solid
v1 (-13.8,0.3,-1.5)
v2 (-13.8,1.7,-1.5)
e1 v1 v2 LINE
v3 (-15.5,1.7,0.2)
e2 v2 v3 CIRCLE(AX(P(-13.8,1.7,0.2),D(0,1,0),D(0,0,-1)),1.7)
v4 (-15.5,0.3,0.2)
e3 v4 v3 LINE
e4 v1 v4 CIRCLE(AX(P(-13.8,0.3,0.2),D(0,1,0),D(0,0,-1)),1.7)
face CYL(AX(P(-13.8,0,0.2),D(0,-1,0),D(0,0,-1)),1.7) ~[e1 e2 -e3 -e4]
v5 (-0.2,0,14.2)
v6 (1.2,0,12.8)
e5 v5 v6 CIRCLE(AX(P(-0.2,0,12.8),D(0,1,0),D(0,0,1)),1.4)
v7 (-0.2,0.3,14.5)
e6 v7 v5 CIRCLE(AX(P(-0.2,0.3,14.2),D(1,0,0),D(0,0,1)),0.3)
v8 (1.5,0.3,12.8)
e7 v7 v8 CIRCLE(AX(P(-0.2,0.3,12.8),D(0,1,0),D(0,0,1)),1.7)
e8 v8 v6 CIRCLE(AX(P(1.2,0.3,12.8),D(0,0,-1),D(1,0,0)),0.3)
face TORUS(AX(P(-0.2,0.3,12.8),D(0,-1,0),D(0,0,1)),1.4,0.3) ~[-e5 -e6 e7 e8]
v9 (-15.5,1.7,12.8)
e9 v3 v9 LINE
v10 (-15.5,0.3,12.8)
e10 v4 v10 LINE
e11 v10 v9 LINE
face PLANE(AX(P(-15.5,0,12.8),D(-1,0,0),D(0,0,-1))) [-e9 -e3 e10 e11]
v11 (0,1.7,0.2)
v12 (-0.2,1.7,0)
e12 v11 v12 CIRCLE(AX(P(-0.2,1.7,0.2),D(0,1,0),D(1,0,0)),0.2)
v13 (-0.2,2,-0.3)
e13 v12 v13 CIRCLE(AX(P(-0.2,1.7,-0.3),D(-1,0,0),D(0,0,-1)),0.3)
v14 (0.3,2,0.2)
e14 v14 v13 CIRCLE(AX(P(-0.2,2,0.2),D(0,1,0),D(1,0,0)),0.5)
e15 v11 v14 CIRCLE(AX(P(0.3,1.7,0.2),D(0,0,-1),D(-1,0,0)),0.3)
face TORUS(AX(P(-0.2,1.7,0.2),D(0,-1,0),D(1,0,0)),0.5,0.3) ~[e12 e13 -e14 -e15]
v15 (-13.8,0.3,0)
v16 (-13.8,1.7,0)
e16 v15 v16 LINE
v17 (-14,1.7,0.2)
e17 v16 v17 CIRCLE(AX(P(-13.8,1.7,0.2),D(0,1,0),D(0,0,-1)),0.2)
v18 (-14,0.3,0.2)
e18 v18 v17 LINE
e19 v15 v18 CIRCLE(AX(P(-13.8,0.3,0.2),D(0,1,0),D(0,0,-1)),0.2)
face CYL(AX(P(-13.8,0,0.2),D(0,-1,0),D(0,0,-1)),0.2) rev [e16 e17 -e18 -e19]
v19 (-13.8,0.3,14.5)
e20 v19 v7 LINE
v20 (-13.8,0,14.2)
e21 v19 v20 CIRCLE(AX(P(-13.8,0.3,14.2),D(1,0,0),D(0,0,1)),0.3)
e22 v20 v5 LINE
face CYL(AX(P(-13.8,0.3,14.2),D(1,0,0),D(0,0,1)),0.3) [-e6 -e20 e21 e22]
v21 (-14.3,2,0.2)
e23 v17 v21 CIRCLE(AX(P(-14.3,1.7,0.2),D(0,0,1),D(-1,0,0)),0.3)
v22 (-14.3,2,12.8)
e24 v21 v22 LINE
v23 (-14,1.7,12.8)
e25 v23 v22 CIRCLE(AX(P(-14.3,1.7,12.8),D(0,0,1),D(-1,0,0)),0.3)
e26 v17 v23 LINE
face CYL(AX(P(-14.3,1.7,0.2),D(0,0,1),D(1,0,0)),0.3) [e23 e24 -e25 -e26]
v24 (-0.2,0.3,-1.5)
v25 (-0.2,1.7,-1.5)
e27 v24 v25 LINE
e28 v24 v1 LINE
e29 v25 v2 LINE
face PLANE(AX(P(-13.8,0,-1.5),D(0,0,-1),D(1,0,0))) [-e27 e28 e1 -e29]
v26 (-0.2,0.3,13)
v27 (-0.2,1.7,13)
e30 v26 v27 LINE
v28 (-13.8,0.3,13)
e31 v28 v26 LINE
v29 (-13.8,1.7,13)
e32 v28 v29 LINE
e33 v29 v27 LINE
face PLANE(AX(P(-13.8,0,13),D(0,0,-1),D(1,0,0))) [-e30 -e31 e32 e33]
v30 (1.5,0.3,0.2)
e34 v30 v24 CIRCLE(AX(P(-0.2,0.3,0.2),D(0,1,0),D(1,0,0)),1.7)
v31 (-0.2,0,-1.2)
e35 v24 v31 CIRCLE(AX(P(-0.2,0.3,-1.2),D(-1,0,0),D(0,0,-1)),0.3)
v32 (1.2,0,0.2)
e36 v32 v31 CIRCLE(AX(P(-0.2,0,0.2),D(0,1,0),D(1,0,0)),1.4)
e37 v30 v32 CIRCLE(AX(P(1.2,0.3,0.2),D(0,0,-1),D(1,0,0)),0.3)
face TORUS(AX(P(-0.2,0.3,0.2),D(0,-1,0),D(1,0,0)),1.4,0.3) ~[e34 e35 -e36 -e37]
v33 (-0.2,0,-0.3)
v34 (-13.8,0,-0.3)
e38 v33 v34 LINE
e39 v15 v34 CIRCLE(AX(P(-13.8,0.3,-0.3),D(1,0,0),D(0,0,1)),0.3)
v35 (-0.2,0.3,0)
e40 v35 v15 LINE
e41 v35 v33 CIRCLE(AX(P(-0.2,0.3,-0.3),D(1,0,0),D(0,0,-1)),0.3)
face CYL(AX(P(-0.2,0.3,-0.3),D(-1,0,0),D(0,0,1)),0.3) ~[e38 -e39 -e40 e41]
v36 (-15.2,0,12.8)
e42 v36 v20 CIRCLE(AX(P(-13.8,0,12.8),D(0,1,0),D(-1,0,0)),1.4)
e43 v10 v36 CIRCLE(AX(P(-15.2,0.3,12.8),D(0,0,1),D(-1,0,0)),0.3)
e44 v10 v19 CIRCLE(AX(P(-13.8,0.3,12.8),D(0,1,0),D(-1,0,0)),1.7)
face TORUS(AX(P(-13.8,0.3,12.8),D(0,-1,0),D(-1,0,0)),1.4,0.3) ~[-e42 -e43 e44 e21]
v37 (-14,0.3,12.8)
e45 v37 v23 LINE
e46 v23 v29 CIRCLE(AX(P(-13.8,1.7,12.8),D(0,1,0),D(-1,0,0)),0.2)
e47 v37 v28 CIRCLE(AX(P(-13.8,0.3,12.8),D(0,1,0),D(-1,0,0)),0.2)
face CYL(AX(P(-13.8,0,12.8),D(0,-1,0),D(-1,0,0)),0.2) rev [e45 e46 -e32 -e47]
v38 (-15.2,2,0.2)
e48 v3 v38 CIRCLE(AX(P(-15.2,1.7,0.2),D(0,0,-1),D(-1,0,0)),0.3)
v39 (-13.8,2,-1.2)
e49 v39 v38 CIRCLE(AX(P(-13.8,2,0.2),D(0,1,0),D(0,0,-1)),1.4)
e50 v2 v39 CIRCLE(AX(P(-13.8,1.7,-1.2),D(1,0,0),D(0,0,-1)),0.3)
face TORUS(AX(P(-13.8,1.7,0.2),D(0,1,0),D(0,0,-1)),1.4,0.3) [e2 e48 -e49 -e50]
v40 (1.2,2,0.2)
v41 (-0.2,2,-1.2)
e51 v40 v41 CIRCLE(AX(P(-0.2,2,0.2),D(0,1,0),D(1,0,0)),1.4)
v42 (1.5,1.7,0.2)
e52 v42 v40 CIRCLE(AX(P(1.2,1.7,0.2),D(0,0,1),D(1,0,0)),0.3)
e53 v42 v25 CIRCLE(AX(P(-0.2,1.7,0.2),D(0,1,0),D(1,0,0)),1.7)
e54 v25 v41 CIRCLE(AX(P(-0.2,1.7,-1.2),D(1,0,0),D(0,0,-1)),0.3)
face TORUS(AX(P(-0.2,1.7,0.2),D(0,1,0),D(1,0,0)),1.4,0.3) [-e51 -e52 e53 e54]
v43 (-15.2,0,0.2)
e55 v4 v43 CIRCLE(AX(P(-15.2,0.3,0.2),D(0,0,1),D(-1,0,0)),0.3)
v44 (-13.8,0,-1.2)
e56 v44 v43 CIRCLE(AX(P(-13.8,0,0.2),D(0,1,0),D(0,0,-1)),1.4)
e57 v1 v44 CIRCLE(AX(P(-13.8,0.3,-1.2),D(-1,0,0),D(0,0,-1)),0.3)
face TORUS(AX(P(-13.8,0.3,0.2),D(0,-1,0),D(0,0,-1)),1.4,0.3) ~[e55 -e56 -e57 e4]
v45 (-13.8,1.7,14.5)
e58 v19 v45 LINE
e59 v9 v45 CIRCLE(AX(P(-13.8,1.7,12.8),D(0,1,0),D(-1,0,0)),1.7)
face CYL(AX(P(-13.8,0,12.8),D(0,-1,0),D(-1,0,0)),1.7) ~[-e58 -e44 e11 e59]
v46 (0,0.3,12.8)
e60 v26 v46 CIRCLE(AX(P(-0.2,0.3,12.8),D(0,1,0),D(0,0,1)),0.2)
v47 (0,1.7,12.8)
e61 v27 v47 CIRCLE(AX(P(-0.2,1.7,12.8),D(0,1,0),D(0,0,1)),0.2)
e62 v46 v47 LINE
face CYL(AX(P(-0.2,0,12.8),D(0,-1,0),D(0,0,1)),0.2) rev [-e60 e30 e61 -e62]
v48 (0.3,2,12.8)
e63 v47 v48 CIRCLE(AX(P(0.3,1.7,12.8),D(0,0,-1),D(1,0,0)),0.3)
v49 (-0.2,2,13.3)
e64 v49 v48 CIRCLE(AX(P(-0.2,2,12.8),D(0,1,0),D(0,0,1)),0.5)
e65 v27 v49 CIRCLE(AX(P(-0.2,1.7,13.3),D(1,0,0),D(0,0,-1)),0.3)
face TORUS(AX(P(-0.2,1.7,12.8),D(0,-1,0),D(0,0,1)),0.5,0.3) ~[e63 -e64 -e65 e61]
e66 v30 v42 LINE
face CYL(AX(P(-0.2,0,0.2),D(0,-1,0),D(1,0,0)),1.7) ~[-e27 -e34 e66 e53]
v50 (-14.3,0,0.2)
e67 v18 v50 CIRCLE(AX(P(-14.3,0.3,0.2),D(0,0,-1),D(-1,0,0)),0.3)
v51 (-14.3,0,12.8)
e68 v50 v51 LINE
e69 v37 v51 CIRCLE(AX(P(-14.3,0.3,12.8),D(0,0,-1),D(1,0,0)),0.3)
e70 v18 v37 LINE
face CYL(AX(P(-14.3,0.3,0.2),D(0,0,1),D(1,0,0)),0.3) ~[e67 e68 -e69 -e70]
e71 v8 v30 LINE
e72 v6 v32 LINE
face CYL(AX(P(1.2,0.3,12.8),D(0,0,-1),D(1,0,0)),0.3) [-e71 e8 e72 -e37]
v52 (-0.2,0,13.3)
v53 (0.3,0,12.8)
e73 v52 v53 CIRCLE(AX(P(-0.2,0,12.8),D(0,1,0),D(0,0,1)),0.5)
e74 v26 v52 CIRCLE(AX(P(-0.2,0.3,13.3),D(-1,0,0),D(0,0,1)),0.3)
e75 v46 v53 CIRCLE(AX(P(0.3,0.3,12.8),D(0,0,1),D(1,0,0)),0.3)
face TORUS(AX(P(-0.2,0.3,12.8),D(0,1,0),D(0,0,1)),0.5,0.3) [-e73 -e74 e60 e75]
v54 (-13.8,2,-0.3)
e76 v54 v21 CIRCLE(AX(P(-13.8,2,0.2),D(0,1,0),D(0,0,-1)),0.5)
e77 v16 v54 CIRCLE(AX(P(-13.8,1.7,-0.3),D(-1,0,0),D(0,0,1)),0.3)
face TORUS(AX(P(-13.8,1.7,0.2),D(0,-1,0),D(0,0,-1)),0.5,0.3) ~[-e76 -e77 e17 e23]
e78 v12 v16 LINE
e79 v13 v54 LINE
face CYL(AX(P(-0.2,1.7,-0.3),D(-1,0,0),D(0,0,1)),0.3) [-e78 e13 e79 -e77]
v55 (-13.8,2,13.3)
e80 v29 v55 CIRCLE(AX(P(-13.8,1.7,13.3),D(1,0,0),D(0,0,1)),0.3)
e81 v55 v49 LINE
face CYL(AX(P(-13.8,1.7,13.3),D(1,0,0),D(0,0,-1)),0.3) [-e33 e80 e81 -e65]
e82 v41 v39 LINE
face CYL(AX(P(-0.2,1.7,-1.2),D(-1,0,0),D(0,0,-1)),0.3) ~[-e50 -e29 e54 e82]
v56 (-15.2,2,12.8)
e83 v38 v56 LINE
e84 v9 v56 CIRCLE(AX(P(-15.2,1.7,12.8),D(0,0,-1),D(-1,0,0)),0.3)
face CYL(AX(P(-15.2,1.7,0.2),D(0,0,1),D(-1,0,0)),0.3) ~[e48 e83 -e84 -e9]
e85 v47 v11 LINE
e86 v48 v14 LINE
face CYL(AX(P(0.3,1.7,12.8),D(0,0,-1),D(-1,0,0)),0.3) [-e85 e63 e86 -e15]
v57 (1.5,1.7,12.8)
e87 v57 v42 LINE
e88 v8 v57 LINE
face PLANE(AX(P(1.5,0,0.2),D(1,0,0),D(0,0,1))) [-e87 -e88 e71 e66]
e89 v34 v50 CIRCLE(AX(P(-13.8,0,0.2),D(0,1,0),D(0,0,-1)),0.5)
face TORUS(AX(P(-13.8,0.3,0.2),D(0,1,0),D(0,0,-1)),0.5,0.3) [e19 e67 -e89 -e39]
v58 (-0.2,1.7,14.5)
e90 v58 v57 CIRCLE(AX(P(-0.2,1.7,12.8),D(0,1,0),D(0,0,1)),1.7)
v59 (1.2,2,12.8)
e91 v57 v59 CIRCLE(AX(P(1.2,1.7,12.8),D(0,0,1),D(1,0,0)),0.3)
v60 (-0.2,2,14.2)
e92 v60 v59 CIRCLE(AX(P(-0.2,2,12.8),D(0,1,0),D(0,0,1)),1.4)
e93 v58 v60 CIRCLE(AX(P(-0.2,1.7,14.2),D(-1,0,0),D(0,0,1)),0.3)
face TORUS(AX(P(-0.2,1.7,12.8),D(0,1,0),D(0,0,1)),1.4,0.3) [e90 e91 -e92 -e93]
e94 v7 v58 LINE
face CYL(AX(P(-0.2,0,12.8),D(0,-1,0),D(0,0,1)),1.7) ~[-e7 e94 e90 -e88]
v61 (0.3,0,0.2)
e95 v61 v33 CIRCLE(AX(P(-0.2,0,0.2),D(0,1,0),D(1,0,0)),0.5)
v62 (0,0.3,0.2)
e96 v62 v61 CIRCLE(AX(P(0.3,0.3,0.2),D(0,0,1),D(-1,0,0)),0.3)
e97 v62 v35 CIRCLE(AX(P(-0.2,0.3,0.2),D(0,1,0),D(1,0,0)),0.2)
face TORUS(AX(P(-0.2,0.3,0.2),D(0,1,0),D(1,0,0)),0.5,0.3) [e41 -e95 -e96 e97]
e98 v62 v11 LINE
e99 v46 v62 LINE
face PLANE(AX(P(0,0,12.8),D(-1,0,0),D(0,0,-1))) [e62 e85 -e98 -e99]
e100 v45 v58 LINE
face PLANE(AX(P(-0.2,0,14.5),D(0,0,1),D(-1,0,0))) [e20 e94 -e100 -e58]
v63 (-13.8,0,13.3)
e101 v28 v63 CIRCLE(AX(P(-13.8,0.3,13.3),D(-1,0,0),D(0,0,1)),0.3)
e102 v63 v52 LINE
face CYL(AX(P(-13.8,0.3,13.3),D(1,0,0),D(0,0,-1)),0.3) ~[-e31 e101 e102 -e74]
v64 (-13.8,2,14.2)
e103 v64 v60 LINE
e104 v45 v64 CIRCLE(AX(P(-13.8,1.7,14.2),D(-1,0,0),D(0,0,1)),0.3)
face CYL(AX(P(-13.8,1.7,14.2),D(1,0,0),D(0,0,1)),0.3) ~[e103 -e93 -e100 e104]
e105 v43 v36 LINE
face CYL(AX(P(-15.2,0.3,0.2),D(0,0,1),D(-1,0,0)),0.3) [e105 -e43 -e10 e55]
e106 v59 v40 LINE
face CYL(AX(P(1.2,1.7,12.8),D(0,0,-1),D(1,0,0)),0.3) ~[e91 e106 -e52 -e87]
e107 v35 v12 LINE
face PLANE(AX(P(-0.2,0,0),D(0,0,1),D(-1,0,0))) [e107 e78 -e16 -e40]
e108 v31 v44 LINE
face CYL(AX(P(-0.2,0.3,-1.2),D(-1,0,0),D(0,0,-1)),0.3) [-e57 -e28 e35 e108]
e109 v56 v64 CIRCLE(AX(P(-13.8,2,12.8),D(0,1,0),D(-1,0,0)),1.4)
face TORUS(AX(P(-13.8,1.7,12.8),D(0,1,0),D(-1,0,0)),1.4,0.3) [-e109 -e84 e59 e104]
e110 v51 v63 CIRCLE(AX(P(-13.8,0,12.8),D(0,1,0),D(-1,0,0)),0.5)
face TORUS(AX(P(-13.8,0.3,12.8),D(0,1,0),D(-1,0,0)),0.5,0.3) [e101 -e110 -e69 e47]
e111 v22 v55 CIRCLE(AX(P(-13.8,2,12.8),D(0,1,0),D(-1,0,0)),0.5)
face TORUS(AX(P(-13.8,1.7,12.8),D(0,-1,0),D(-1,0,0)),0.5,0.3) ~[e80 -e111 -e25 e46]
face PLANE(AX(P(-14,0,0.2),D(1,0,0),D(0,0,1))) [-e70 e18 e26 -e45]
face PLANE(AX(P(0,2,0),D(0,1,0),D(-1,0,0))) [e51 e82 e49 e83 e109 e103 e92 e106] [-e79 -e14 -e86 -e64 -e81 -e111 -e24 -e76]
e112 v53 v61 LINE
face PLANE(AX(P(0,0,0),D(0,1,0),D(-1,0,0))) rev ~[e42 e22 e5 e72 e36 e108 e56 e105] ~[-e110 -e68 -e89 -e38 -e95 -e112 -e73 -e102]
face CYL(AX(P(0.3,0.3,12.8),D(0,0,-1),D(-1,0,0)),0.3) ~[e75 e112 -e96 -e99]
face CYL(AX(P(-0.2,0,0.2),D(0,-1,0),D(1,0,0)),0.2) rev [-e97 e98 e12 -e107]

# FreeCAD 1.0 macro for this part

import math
import FreeCAD as App
import Part
import Sketcher
from FreeCAD import Vector
Q = App.Units.Quantity


def edges_at(feature, points):
    """Names of the edges that pass closest to the given points."""
    edges = feature.Shape.Edges
    near = lambda p: min(range(len(edges)), key=lambda i: edges[i].distToShape(Part.Vertex(*p))[0])
    return sorted({f"Edge{near(p) + 1}" for p in points})

doc = App.newDocument("Part")
body = doc.addObject("PartDesign::Body", "Body")

# Sketch on XZ plane
sketch1 = doc.addObject("Sketcher::SketchObject", "Sketch")
body.addObject(sketch1)
sketch1.AttachmentSupport = (doc.XZ_Plane, [""])
sketch1.MapMode = "FlatFace"
sketch1.addGeometry(Part.LineSegment(Vector(1.5, 12.8, 0), Vector(1.5, 0.2, 0)), False)
sketch1.addGeometry(Part.ArcOfCircle(Part.Circle(Vector(-0.2, 0.2, 0), Vector(0, 0, 1), 1.7), math.radians(-90), math.radians(0)), False)
sketch1.addGeometry(Part.LineSegment(Vector(-0.2, -1.5, 0), Vector(-13.8, -1.5, 0)), False)
sketch1.addGeometry(Part.ArcOfCircle(Part.Circle(Vector(-13.8, 0.2, 0), Vector(0, 0, 1), 1.7), math.radians(180), math.radians(270)), False)
sketch1.addGeometry(Part.LineSegment(Vector(-15.5, 0.2, 0), Vector(-15.5, 12.8, 0)), False)
sketch1.addGeometry(Part.ArcOfCircle(Part.Circle(Vector(-13.8, 12.8, 0), Vector(0, 0, 1), 1.7), math.radians(90), math.radians(180)), False)
sketch1.addGeometry(Part.LineSegment(Vector(-13.8, 14.5, 0), Vector(-0.2, 14.5, 0)), False)
sketch1.addGeometry(Part.ArcOfCircle(Part.Circle(Vector(-0.2, 12.8, 0), Vector(0, 0, 1), 1.7), math.radians(0), math.radians(90)), False)
sketch1.addGeometry(Part.LineSegment(Vector(-13.8, 0, 0), Vector(-0.2, 0, 0)), False)
sketch1.addGeometry(Part.ArcOfCircle(Part.Circle(Vector(-0.2, 0.2, 0), Vector(0, 0, 1), 0.2), math.radians(-90), math.radians(0)), False)
sketch1.addGeometry(Part.LineSegment(Vector(0, 0.2, 0), Vector(0, 12.8, 0)), False)
sketch1.addGeometry(Part.ArcOfCircle(Part.Circle(Vector(-0.2, 12.8, 0), Vector(0, 0, 1), 0.2), math.radians(0), math.radians(90)), False)
sketch1.addGeometry(Part.LineSegment(Vector(-0.2, 13, 0), Vector(-13.8, 13, 0)), False)
sketch1.addGeometry(Part.ArcOfCircle(Part.Circle(Vector(-13.8, 12.8, 0), Vector(0, 0, 1), 0.2), math.radians(90), math.radians(180)), False)
sketch1.addGeometry(Part.LineSegment(Vector(-14, 12.8, 0), Vector(-14, 0.2, 0)), False)
sketch1.addGeometry(Part.ArcOfCircle(Part.Circle(Vector(-13.8, 0.2, 0), Vector(0, 0, 1), 0.2), math.radians(180), math.radians(270)), False)
sketch1.addConstraint(Sketcher.Constraint("Tangent", 0, 2, 1, 2))
sketch1.addConstraint(Sketcher.Constraint("Tangent", 1, 1, 2, 1))
sketch1.addConstraint(Sketcher.Constraint("Tangent", 2, 2, 3, 2))
sketch1.addConstraint(Sketcher.Constraint("Tangent", 3, 1, 4, 1))
sketch1.addConstraint(Sketcher.Constraint("Tangent", 4, 2, 5, 2))
sketch1.addConstraint(Sketcher.Constraint("Tangent", 5, 1, 6, 1))
sketch1.addConstraint(Sketcher.Constraint("Tangent", 6, 2, 7, 2))
sketch1.addConstraint(Sketcher.Constraint("Tangent", 7, 1, 0, 1))
sketch1.addConstraint(Sketcher.Constraint("Tangent", 8, 2, 9, 1))
sketch1.addConstraint(Sketcher.Constraint("Tangent", 9, 2, 10, 1))
sketch1.addConstraint(Sketcher.Constraint("Tangent", 10, 2, 11, 1))
sketch1.addConstraint(Sketcher.Constraint("Tangent", 11, 2, 12, 1))
sketch1.addConstraint(Sketcher.Constraint("Tangent", 12, 2, 13, 1))
sketch1.addConstraint(Sketcher.Constraint("Tangent", 13, 2, 14, 1))
sketch1.addConstraint(Sketcher.Constraint("Tangent", 14, 2, 15, 1))
sketch1.addConstraint(Sketcher.Constraint("Tangent", 15, 2, 8, 1))
sketch1.addConstraint(Sketcher.Constraint("Vertical", 0))
sketch1.addConstraint(Sketcher.Constraint("Horizontal", 2))
sketch1.addConstraint(Sketcher.Constraint("Vertical", 4))
sketch1.addConstraint(Sketcher.Constraint("Horizontal", 6))
sketch1.addConstraint(Sketcher.Constraint("Horizontal", 8))
sketch1.addConstraint(Sketcher.Constraint("Vertical", 10))
sketch1.addConstraint(Sketcher.Constraint("Horizontal", 12))
sketch1.addConstraint(Sketcher.Constraint("Vertical", 14))
sketch1.addConstraint(Sketcher.Constraint("Coincident", 9, 3, 1, 3))
sketch1.addConstraint(Sketcher.Constraint("Coincident", 11, 3, 7, 3))
sketch1.addConstraint(Sketcher.Constraint("Coincident", 13, 3, 5, 3))
sketch1.addConstraint(Sketcher.Constraint("Equal", 1, 3))
sketch1.addConstraint(Sketcher.Constraint("Equal", 3, 5))
sketch1.addConstraint(Sketcher.Constraint("Equal", 5, 7))
sketch1.addConstraint(Sketcher.Constraint("Equal", 13, 15))
sketch1.addConstraint(Sketcher.Constraint("PointOnObject", 8, 2, -1))
sketch1.addConstraint(Sketcher.Constraint("PointOnObject", 9, 2, -2))
sketch1.addConstraint(Sketcher.Constraint("Radius", 9, Q("0.2 mm")))
sketch1.addConstraint(Sketcher.Constraint("DistanceY", -1, 1, 11, 2, Q("13 mm")))
sketch1.addConstraint(Sketcher.Constraint("DistanceX", 13, 2, -1, 1, Q("14 mm")))
sketch1.addConstraint(Sketcher.Constraint("DistanceX", -1, 1, 0, 2, Q("1.5 mm")))
pad1 = doc.addObject("PartDesign::Pad", "Pad")
body.addObject(pad1)
pad1.Profile = sketch1
pad1.Length = 2
pad1.Reversed = True
doc.recompute()

fillet = doc.addObject("PartDesign::Fillet", "Fillet")
body.addObject(fillet)
fillet.Base = (pad1, edges_at(pad1, [
    (1.002, 2, 14.002),
    (1.5, 2, 6.5),
    (1.002, 2, -1.002),
    (-7, 2, -1.5),
    (-15.002, 2, -1.002),
    (-15.5, 2, 6.5),
    (-15.002, 2, 14.002),
    (-7, 2, 14.5),
    (-13.941, 2, 12.941),
    (-14, 2, 6.5),
    (-13.941, 2, 0.059),
    (-7, 2, 0),
    (-0.059, 2, 0.059),
    (0, 2, 6.5),
    (-0.059, 2, 12.941),
    (-7, 2, 13),
    (-15.002, 0, 14.002),
    (-15.5, 0, 6.5),
    (-15.002, 0, -1.002),
    (-7, 0, -1.5),
    (1.002, 0, -1.002),
    (1.5, 0, 6.5),
    (1.002, 0, 14.002),
    (-7, 0, 14.5),
    (-0.059, 0, 12.941),
    (0, 0, 6.5),
    (-0.059, 0, 0.059),
    (-7, 0, 0),
    (-13.941, 0, 0.059),
    (-14, 0, 6.5),
    (-13.941, 0, 12.941),
    (-7, 0, 13),
]))
fillet.Radius = 0.3

doc.recompute()
